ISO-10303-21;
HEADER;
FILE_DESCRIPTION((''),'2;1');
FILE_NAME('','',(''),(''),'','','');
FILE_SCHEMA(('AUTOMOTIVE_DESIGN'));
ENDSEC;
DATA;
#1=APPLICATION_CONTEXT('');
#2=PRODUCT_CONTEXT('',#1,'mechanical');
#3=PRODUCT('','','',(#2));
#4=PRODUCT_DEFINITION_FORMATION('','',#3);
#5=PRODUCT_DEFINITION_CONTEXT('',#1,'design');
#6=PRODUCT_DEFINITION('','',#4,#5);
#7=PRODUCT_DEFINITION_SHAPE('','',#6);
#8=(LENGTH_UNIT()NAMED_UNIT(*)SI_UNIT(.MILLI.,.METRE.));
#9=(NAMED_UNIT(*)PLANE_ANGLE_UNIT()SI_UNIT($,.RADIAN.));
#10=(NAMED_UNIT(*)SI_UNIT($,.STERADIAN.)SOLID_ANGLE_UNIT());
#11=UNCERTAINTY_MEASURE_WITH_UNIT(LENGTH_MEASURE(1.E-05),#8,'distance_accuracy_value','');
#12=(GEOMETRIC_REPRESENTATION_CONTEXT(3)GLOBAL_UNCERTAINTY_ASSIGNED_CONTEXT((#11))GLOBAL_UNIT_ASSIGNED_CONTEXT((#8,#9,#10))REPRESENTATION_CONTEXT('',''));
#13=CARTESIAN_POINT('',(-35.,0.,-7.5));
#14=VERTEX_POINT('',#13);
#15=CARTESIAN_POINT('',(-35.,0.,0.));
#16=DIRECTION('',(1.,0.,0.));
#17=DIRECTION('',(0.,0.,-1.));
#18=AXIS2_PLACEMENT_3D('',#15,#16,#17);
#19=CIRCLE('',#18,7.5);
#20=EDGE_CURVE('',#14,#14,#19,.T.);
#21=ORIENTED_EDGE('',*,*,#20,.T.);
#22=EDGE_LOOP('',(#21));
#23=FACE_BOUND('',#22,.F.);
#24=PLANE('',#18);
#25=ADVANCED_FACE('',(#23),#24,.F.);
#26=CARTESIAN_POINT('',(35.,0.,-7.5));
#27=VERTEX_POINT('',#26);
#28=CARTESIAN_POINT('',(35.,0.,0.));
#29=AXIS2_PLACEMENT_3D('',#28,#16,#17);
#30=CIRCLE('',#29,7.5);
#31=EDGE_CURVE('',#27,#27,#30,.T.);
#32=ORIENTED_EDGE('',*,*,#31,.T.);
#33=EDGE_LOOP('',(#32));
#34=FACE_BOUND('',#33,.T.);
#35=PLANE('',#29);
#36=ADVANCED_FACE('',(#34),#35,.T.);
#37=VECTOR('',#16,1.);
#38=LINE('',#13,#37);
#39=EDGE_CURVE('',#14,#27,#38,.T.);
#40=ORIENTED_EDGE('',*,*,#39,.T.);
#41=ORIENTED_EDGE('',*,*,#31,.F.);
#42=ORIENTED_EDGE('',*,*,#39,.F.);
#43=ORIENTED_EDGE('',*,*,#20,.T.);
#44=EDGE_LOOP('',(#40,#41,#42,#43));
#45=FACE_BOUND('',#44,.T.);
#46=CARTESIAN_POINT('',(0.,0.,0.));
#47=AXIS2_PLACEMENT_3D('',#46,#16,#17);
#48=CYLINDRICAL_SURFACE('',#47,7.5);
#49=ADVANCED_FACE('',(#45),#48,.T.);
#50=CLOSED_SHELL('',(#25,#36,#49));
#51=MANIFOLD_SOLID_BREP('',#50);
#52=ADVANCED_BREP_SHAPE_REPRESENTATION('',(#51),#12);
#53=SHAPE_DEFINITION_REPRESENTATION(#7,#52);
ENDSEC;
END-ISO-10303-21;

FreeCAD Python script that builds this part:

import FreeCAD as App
import Part
import Sketcher
from FreeCAD import Vector

doc = App.newDocument("Part")
params = doc.addObject("Spreadsheet::Sheet", "Params")
for row, (alias, value) in enumerate([
    ("sketch1_diameter", "15 mm"),
    ("pad1_length", "70 mm"),
], start=1):
    params.set(f"A{row}", alias)
    params.set(f"B{row}", "=" + value)
    params.setAlias(f"B{row}", alias)

body = doc.addObject("PartDesign::Body", "Body")

# Sketch on YZ plane
sketch1 = body.newObject("Sketcher::SketchObject", "Sketch")
sketch1.AttachmentSupport = (doc.getObject("YZ_Plane"), [""])
sketch1.MapMode = "FlatFace"
sketch1.addGeometry(Part.Circle(Vector(0, 0, 0), Vector(0, 0, 1), 8), False)
sketch1.addConstraint([
    Sketcher.Constraint("Coincident", 0, 3, -1, 1),
    Sketcher.Constraint("Diameter", 0, 15.0),
])
sketch1.setExpression("Constraints[1]", "Params.sketch1_diameter")
pad1 = body.newObject("PartDesign::Pad", "Pad")
pad1.Profile = sketch1
pad1.setExpression("Length", "Params.pad1_length")
pad1.Midplane = True

doc.recompute()
